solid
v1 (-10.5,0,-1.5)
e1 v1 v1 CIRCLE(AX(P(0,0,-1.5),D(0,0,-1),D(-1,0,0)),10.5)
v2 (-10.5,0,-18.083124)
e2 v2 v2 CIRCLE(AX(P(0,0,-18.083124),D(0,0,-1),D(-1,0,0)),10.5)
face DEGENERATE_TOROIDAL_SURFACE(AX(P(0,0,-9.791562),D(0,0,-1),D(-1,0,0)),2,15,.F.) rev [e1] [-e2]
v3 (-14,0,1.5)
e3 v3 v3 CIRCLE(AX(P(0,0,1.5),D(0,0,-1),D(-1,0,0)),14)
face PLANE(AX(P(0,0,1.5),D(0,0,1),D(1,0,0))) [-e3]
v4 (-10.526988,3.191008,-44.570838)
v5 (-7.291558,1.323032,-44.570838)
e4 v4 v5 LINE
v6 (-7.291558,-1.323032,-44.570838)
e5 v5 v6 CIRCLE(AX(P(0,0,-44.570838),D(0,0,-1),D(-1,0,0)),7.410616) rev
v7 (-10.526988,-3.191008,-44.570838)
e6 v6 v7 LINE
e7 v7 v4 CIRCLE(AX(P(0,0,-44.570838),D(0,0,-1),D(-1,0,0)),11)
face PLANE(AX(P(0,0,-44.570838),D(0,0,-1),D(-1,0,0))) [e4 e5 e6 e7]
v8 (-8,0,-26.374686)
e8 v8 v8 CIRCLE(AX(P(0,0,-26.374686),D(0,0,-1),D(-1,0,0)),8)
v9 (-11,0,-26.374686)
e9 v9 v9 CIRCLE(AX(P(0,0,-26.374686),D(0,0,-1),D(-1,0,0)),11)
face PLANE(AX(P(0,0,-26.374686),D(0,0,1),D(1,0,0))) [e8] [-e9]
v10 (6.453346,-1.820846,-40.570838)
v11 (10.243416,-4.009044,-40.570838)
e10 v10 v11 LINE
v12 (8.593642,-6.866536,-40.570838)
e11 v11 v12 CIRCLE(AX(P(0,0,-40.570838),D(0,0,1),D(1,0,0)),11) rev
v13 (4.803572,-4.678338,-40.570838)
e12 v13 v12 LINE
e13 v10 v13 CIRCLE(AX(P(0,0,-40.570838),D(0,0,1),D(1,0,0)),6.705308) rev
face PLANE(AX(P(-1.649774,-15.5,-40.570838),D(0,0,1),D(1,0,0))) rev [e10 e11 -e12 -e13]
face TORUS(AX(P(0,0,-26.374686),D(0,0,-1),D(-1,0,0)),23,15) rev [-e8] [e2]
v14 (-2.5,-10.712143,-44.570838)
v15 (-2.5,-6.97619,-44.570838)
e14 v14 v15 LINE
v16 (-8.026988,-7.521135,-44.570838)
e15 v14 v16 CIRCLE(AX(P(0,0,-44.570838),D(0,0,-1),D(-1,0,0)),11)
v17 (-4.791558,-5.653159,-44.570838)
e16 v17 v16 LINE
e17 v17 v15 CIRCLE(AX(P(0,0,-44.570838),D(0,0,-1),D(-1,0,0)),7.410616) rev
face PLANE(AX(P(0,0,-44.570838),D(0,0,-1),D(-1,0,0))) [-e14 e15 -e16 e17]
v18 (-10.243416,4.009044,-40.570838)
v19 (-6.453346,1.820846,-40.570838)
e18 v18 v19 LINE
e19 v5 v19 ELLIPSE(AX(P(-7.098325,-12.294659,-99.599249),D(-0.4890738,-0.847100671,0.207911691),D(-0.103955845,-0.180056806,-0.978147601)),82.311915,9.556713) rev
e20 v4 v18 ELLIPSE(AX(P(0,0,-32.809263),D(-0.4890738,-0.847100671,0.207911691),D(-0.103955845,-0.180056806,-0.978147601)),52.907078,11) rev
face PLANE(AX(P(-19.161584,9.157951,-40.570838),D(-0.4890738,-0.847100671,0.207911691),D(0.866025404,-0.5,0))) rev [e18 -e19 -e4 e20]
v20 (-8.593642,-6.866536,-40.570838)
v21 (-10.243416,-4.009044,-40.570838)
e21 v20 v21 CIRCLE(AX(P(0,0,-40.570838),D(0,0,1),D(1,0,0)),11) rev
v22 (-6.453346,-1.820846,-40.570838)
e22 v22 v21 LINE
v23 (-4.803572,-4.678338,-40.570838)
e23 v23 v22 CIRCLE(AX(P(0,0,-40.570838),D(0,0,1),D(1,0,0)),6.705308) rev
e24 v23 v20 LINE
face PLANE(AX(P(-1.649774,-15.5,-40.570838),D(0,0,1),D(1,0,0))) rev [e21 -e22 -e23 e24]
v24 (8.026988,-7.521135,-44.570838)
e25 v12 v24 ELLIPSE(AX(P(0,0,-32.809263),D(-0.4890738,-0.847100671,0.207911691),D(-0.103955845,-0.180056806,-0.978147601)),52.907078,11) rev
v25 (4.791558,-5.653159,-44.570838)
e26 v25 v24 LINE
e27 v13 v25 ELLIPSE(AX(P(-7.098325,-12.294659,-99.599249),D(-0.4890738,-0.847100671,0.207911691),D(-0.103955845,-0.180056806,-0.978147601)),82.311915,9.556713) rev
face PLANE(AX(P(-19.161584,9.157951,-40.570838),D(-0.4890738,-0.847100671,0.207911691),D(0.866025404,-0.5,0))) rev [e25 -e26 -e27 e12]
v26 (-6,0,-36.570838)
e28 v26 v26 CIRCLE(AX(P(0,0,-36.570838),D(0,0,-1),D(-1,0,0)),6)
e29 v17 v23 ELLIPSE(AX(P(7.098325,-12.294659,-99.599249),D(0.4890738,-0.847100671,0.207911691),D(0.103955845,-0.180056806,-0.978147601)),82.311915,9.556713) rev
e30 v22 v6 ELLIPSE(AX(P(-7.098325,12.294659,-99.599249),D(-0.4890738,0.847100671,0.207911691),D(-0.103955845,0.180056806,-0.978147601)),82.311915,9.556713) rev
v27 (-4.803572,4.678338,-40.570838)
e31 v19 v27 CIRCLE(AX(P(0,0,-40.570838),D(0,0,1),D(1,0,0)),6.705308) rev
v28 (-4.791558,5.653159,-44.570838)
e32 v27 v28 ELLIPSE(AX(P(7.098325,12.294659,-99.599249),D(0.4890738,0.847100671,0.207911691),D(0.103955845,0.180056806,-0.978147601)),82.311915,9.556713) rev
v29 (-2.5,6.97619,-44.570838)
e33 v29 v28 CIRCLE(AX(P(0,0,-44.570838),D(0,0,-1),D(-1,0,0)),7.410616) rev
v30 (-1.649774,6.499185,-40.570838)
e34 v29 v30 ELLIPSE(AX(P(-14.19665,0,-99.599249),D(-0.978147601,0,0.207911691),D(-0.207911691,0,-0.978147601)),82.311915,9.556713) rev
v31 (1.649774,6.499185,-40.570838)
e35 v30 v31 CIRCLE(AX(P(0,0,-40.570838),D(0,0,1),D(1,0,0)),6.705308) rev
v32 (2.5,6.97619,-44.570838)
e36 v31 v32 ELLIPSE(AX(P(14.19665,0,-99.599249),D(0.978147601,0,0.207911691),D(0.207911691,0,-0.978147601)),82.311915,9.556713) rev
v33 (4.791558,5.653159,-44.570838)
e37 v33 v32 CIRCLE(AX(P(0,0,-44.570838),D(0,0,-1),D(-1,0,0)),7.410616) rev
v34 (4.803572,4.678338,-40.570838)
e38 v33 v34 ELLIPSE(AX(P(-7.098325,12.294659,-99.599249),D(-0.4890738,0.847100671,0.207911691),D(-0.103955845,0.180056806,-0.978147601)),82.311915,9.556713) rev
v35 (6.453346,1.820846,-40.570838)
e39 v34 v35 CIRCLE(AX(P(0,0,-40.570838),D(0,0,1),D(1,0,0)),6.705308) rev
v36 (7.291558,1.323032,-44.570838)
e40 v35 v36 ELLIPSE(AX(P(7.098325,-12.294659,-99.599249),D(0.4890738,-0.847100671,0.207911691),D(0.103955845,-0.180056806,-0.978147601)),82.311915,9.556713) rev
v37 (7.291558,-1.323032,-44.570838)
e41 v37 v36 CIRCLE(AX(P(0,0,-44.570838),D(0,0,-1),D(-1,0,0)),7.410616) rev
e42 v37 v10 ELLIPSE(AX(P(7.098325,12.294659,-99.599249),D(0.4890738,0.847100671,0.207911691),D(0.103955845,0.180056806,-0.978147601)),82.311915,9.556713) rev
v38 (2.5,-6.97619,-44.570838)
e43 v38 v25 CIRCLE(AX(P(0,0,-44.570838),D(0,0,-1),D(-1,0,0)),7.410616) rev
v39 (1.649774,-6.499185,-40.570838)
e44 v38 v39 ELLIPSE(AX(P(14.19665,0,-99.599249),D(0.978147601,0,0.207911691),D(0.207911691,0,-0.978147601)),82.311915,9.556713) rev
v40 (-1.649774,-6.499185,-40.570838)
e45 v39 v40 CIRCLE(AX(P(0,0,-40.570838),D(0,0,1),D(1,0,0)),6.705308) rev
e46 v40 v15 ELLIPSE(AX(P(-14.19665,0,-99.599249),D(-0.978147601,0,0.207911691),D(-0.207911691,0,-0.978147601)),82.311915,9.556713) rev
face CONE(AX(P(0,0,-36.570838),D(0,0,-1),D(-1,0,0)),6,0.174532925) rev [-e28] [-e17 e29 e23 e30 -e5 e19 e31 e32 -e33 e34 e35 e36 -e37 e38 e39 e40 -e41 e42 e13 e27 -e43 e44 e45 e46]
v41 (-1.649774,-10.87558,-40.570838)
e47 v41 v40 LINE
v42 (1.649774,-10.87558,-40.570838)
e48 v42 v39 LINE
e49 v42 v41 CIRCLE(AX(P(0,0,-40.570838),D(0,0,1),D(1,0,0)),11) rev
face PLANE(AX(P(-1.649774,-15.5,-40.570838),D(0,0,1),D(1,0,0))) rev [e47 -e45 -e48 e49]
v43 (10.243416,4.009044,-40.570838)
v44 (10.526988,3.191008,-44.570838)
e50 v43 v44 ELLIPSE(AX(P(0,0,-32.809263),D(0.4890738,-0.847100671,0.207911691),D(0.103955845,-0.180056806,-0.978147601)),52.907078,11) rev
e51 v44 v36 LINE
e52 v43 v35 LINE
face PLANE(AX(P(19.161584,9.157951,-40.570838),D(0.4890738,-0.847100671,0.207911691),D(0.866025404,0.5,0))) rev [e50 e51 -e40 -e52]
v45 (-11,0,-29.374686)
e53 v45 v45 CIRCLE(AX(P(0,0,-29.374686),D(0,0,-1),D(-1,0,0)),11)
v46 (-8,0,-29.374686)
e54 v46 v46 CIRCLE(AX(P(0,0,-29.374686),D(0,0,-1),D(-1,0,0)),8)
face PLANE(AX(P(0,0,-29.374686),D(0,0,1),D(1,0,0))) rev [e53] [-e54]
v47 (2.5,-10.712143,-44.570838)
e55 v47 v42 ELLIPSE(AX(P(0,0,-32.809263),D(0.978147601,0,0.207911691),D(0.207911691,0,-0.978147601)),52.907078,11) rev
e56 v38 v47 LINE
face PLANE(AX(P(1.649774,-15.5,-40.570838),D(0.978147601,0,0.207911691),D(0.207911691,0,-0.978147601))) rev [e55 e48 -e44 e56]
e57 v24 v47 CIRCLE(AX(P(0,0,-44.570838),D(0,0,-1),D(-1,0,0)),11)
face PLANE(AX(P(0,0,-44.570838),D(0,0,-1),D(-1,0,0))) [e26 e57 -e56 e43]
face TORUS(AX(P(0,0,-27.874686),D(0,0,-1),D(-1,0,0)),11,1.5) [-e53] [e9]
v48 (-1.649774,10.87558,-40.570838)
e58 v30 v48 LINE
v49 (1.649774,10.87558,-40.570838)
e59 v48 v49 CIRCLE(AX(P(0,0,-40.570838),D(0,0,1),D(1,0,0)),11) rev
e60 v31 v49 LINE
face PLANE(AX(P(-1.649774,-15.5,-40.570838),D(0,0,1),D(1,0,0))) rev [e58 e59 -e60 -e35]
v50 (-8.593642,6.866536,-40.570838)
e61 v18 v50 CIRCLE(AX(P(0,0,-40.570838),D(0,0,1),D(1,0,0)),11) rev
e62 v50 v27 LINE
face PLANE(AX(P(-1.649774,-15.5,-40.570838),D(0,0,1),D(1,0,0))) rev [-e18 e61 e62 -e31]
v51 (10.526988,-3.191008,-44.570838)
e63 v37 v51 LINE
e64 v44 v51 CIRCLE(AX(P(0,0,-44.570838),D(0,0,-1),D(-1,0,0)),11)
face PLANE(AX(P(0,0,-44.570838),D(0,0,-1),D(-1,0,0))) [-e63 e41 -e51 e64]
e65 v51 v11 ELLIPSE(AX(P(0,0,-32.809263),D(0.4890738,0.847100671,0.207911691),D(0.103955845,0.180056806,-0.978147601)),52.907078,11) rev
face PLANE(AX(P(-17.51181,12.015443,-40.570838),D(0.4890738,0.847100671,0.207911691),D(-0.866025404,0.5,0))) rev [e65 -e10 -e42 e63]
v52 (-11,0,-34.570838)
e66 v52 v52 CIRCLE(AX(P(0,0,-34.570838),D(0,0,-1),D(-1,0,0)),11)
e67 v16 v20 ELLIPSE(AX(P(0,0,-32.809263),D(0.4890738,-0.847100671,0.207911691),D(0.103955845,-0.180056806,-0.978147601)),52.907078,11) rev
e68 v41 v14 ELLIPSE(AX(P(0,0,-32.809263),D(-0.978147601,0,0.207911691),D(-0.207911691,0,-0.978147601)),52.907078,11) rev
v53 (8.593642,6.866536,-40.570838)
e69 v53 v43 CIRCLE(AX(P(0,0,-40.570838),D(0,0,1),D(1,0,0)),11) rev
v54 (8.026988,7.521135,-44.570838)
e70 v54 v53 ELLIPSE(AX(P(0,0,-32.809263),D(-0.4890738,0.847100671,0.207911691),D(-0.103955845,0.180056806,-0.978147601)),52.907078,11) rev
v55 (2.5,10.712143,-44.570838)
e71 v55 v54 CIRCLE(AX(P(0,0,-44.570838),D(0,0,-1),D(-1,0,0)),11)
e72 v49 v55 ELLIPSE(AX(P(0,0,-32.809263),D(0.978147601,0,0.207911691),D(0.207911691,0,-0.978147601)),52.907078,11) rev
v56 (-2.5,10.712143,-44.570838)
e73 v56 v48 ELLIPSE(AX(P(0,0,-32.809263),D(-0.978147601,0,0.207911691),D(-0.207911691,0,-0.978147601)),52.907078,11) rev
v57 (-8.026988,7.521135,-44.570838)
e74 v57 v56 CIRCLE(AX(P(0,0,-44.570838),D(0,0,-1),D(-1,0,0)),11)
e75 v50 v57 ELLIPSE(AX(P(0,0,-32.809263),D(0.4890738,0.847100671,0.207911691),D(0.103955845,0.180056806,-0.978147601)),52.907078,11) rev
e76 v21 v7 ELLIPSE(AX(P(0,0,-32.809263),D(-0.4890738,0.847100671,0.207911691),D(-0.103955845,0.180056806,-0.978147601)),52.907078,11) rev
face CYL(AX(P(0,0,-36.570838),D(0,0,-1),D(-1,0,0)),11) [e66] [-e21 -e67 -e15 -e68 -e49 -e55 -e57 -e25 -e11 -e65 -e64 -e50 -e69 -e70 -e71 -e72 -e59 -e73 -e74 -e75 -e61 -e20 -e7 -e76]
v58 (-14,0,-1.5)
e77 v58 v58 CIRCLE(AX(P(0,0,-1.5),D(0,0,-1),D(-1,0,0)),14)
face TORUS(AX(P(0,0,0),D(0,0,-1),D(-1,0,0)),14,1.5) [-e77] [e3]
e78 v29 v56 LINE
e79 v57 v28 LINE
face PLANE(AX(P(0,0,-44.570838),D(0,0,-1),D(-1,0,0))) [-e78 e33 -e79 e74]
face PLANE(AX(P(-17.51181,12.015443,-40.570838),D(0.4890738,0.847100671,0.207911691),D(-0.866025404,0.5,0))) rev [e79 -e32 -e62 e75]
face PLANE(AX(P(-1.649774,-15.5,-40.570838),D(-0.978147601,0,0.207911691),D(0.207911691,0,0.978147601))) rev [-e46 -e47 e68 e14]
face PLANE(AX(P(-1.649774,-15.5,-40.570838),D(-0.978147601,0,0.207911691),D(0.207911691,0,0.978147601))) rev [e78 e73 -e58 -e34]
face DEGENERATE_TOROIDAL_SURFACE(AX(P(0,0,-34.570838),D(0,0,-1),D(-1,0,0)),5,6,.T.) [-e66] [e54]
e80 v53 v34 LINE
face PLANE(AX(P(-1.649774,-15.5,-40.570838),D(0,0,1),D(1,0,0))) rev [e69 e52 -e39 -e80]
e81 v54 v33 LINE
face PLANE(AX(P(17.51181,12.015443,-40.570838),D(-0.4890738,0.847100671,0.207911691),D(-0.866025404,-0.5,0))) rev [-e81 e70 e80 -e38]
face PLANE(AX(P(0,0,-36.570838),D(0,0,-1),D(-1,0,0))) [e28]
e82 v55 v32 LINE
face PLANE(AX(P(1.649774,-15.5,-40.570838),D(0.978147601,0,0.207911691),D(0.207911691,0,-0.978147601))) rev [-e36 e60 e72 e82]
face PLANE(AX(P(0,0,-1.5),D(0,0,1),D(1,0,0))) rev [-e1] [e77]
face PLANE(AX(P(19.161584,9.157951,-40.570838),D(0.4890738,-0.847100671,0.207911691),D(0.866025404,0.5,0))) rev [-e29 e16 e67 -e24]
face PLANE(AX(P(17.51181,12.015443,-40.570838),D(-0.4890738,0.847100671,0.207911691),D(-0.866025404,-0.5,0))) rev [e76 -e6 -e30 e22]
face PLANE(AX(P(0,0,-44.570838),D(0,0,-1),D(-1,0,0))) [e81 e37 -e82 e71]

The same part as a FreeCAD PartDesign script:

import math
import FreeCAD as App
import Part
import Sketcher
Q = App.Units.Quantity


def add_polygon(sketch, points):
    """Adds a closed chain of lines whose ends are joined by coincident constraints."""
    first, n = sketch.GeometryCount, len(points)
    for a, b in zip(points, points[1:] + points[:1]):
        sketch.addGeometry(Part.LineSegment(App.Vector(*a, 0), App.Vector(*b, 0)), False)
    for i in range(n):
        sketch.addConstraint(Sketcher.Constraint("Coincident", first + i, 2, first + (i + 1) % n, 1))

doc = App.newDocument("Part")
body = doc.addObject("PartDesign::Body", "Body")

sketch1 = body.newObject("Sketcher::SketchObject", "Sketch")
sketch1.AttachmentSupport = (doc.getObject("XZ_Plane"), [""])
sketch1.MapMode = "FlatFace"
sketch1.addGeometry([
    Part.ArcOfCircle(Part.Circle(App.Vector(-14, 0, 0), App.Vector(0, 0, 1), 1.5), math.radians(90), math.radians(252)),
    Part.LineSegment(App.Vector(-14, 1.5, 0), App.Vector(0, 1.5, 0)),
    Part.LineSegment(App.Vector(0, 1.5, 0), App.Vector(0, -36.57, 0)),
    Part.LineSegment(App.Vector(0, -36.57, 0), App.Vector(-11, -36.57, 0)),
    Part.LineSegment(App.Vector(-11, -36.57, 0), App.Vector(-11, -34.57, 0)),
    Part.ArcOfCircle(Part.Circle(App.Vector(-5, -34.57, 0), App.Vector(0, 0, 1), 6), math.radians(120), math.radians(180)),
    Part.LineSegment(App.Vector(-8, -29.37, 0), App.Vector(-11, -29.37, 0)),
    Part.ArcOfCircle(Part.Circle(App.Vector(-11, -27.87, 0), App.Vector(0, 0, 1), 1.5), math.radians(90), math.radians(270)),
    Part.LineSegment(App.Vector(-11, -26.37, 0), App.Vector(-8, -26.37, 0)),
    Part.ArcOfCircle(Part.Circle(App.Vector(-23, -26.37, 0), App.Vector(0, 0, 1), 15), math.radians(0), math.radians(11.42)),
    Part.ArcOfCircle(Part.Circle(App.Vector(-23, -26.37, 0), App.Vector(0, 0, 1), 15), math.radians(11), math.radians(34)),
    Part.ArcOfCircle(Part.Circle(App.Vector(2, -9.79, 0), App.Vector(0, 0, 1), 15), math.radians(146), math.radians(214)),
    Part.LineSegment(App.Vector(-10.5, -1.5, 0), App.Vector(-14, -1.5, 0)),
    Part.ArcOfCircle(Part.Circle(App.Vector(-14, 0, 0), App.Vector(0, 0, 1), 1.5), math.radians(-107.59), math.radians(-90)),
], False)
sketch1.addConstraint([
    Sketcher.Constraint("Tangent", 0, 1, 1, 1),
    Sketcher.Constraint("Coincident", 1, 2, 2, 1),
    Sketcher.Constraint("Coincident", 2, 2, 3, 1),
    Sketcher.Constraint("Coincident", 3, 2, 4, 1),
    Sketcher.Constraint("Tangent", 4, 2, 5, 2),
    Sketcher.Constraint("Coincident", 5, 1, 6, 1),
    Sketcher.Constraint("Tangent", 6, 2, 7, 2),
    Sketcher.Constraint("Tangent", 7, 1, 8, 1),
    Sketcher.Constraint("Coincident", 8, 2, 9, 1),
    Sketcher.Constraint("Tangent", 9, 2, 10, 1),
    Sketcher.Constraint("Tangent", 10, 2, 11, 2),
    Sketcher.Constraint("Coincident", 11, 1, 12, 1),
    Sketcher.Constraint("Tangent", 12, 2, 13, 2),
    Sketcher.Constraint("Tangent", 13, 1, 0, 2),
    Sketcher.Constraint("Horizontal", 1),
    Sketcher.Constraint("Vertical", 2),
    Sketcher.Constraint("Horizontal", 3),
    Sketcher.Constraint("Vertical", 4),
    Sketcher.Constraint("Horizontal", 6),
    Sketcher.Constraint("Horizontal", 8),
    Sketcher.Constraint("Horizontal", 12),
    Sketcher.Constraint("Equal", 0, 7),
    Sketcher.Constraint("Equal", 9, 10),
    Sketcher.Constraint("Equal", 10, 11),
    Sketcher.Constraint("Equal", 7, 13),
    Sketcher.Constraint("PointOnObject", 0, 3, -1),
    Sketcher.Constraint("PointOnObject", 1, 2, -2),
    Sketcher.Constraint("Horizontal", 10, 3, 7, 1),
    Sketcher.Constraint("Vertical", 7, 3, 3, 2),
    Sketcher.Constraint("Vertical", 5, 1, 8, 2),
    Sketcher.Constraint("Vertical", 10, 2, 11, 1),
    Sketcher.Constraint("Radius", 5, Q("6 mm")),
    Sketcher.Constraint("Radius", 9, Q("15 mm")),
    Sketcher.Constraint("Radius", 0, Q("1.5 mm")),
    Sketcher.Constraint("DistanceX", 1, 1, 1, 2, Q("14 mm")),
    Sketcher.Constraint("DistanceX", 3, 2, 3, 1, Q("11 mm")),
    Sketcher.Constraint("DistanceX", 6, 2, 6, 1, Q("3 mm")),
    Sketcher.Constraint("DistanceY", 4, 1, 4, 2, Q("2 mm")),
    Sketcher.Constraint("DistanceX", 12, 2, 12, 1, Q("3.5 mm")),
    Sketcher.Constraint("DistanceY", 9, 2, 10, 2, Q("5.322819 mm")),
    Sketcher.Constraint("DistanceX", 13, 1, -1, 1, Q("14.453213 mm")),
])
revolution = body.newObject("PartDesign::Revolution", "Revolution")
revolution.Profile = sketch1
revolution.ReferenceAxis = (sketch1, ["V_Axis"])
revolution.Angle = 360

sketch2 = body.newObject("Sketcher::SketchObject", "Sketch001")
sketch2.AttachmentSupport = (doc.getObject("XY_Plane"), [""])
sketch2.MapMode = "FlatFace"
sketch2.AttachmentOffset = App.Placement(App.Vector(0, 0, -36.570838), App.Rotation())
sketch2.addGeometry(Part.Circle(App.Vector(0, 0, 0), App.Vector(0, 0, 1), 11), False)
sketch2.addConstraint([
    Sketcher.Constraint("Coincident", 0, 3, -1, 1),
    Sketcher.Constraint("Diameter", 0, Q("22 mm")),
])
pad1 = body.newObject("PartDesign::Pad", "Pad")
pad1.Profile = sketch2
pad1.Length = 8
pad1.Reversed = True

sketch3 = body.newObject("Sketcher::SketchObject", "Sketch002")
sketch3.AttachmentSupport = (doc.getObject("XZ_Plane"), [""])
sketch3.MapMode = "FlatFace"
add_polygon(sketch3, [(2.5, -44.6), (-2.5, -44.6), (-1.6, -40.6), (1.6, -40.6)])
sketch3.addConstraint([
    Sketcher.Constraint("Horizontal", 0),
    Sketcher.Constraint("Horizontal", 2),
    Sketcher.Constraint("Equal", 1, 3),
    Sketcher.Constraint("DistanceX", 0, 2, 0, 1, Q("5 mm")),
    Sketcher.Constraint("Angle", 1, Q("78 deg")),
    Sketcher.Constraint("DistanceY", 0, 2, 1, 2, Q("4 mm")),
    Sketcher.Constraint("DistanceX", 0, 2, -1, 1, Q("2.5 mm")),
    Sketcher.Constraint("DistanceY", 0, 2, -1, 1, Q("44.570838 mm")),
])
pocket1 = body.newObject("PartDesign::Pocket", "Pocket")
pocket1.Profile = sketch3
pocket1.Length = 33
pocket1.Midplane = True
doc.recompute()

polarpattern = body.newObject("PartDesign::PolarPattern", "PolarPattern")
polarpattern.Originals = [pocket1]
polarpattern.Axis = (doc.getObject("Z_Axis"), [""])
polarpattern.Angle = 360
polarpattern.Occurrences = 3
body.Tip = polarpattern

sketch4 = body.newObject("Sketcher::SketchObject", "Sketch003")
sketch4.AttachmentSupport = (doc.getObject("XZ_Plane"), [""])
sketch4.MapMode = "FlatFace"
add_polygon(sketch4, [(0, -37), (6, -37), (10, -57), (0, -57)])
sketch4.addConstraint([
    Sketcher.Constraint("Horizontal", 0),
    Sketcher.Constraint("Horizontal", 2),
    Sketcher.Constraint("Vertical", 3),
    Sketcher.Constraint("PointOnObject", 2, 2, -2),
    Sketcher.Constraint("DistanceX", 0, 1, 0, 2, Q("6 mm")),
    Sketcher.Constraint("Angle", 1, Q("-80 deg")),
    Sketcher.Constraint("DistanceX", 2, 2, 2, 1, Q("9.549822 mm")),
    Sketcher.Constraint("DistanceY", 0, 2, -1, 1, Q("36.570838 mm")),
])
groove = body.newObject("PartDesign::Groove", "Groove")
groove.Profile = sketch4
groove.ReferenceAxis = (sketch4, ["V_Axis"])
groove.Angle = 360

doc.recompute()
